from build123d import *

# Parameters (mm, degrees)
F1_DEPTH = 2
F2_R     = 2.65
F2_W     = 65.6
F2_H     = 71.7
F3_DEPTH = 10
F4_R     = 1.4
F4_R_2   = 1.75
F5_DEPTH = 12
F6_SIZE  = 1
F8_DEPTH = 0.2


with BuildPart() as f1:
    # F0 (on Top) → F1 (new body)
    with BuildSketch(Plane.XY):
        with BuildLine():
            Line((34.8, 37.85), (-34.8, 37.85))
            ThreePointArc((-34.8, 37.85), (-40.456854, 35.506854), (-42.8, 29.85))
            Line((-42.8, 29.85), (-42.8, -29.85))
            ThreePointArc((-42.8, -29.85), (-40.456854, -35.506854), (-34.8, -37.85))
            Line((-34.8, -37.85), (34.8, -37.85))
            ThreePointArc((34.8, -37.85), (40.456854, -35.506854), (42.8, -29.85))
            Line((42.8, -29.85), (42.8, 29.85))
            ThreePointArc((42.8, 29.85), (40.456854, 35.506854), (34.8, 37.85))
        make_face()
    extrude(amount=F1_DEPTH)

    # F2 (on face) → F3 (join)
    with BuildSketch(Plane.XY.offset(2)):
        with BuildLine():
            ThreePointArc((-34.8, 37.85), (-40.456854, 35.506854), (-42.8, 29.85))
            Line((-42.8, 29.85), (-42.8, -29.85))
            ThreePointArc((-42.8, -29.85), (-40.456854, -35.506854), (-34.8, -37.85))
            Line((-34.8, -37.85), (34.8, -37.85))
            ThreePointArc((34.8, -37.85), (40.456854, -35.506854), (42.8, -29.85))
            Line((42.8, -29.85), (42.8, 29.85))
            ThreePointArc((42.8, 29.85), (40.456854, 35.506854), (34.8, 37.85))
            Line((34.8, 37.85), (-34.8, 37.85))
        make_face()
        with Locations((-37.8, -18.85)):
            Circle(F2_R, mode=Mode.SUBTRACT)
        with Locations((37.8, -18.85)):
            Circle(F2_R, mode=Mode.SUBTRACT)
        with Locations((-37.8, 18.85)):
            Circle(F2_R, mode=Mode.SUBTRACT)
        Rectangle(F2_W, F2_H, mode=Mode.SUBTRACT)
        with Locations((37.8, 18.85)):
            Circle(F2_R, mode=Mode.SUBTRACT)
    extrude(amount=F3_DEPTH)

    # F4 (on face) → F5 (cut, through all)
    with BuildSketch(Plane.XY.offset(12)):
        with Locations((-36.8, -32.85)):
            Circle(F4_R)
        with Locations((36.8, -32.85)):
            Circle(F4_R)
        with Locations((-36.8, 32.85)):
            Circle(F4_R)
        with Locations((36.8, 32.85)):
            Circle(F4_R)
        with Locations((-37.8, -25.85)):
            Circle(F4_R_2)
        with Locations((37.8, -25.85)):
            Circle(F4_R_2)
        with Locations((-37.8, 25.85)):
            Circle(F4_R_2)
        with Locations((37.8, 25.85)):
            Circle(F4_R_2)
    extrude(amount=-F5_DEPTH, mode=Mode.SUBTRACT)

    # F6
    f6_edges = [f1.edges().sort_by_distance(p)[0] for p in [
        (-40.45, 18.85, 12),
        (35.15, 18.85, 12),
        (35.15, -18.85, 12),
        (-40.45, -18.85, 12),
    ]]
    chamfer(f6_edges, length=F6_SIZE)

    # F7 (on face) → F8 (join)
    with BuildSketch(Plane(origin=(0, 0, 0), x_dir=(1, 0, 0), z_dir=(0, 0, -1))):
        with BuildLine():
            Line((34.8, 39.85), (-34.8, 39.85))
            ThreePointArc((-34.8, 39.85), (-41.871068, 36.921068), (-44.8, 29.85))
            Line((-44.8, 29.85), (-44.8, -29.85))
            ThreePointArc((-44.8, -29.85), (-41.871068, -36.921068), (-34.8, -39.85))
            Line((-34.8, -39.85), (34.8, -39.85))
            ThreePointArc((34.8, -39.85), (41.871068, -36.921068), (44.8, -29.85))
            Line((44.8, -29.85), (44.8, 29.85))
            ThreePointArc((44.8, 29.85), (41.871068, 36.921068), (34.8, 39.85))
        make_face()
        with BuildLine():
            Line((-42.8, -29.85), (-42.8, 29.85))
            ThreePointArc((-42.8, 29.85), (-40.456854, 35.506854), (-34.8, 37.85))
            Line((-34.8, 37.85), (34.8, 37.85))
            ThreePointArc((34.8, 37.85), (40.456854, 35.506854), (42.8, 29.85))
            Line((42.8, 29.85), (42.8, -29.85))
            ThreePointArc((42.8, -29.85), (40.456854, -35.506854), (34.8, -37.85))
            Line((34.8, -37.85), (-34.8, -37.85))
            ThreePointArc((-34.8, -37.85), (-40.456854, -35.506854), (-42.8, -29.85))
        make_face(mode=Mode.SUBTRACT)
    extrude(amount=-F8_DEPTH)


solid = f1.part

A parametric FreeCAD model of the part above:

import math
import FreeCAD as App
import Part
import Sketcher
from FreeCAD import Vector
Q = App.Units.Quantity


def edges_at(feature, points):
    """Names of the edges that pass closest to the given points."""
    edges = feature.Shape.Edges
    near = lambda p: min(range(len(edges)), key=lambda i: edges[i].distToShape(Part.Vertex(*p))[0])
    return sorted({f"Edge{near(p) + 1}" for p in points})

doc = App.newDocument("Part")
params = doc.addObject("Spreadsheet::Sheet", "Params")
for row, (alias, value) in enumerate([
    ("sketch1_radius", "8.000001 mm"),
    ("sketch1_width", "69.6 mm"),
    ("sketch1_height", "59.7 mm"),
    ("pad1_length", "2 mm"),
    ("sketch2_radius", "8.000001 mm"),
    ("sketch2_diameter", "5.3 mm"),
    ("sketch2_width", "69.6 mm"),
    ("sketch2_width2", "65.6 mm"),
    ("sketch2_height", "59.7 mm"),
    ("pad2_length", "10 mm"),
    ("sketch3_diameter", "2.8 mm"),
    ("sketch3_diameter2", "3.5 mm"),
    ("chamfer_size", "1 mm"),
    ("sketch4_radius", "9.999999 mm"),
    ("sketch4_radius2", "8.000001 mm"),
    ("sketch4_width", "69.6 mm"),
    ("sketch4_height", "59.7 mm"),
    ("pad3_length", "0.2 mm"),
], start=1):
    params.set(f"A{row}", alias)
    params.set(f"B{row}", "=" + value)
    params.setAlias(f"B{row}", alias)

body = doc.addObject("PartDesign::Body", "Body")

sketch1 = body.newObject("Sketcher::SketchObject", "Sketch")
sketch1.AttachmentSupport = (doc.getObject("XY_Plane"), [""])
sketch1.MapMode = "FlatFace"
sketch1.addGeometry(Part.LineSegment(Vector(35, 38, 0), Vector(-35, 38, 0)), False)
sketch1.addGeometry(Part.ArcOfCircle(Part.Circle(Vector(-35, 30, 0), Vector(0, 0, 1), 8), math.radians(90), math.radians(180)), False)
sketch1.addGeometry(Part.LineSegment(Vector(-43, 30, 0), Vector(-43, -30, 0)), False)
sketch1.addGeometry(Part.ArcOfCircle(Part.Circle(Vector(-35, -30, 0), Vector(0, 0, 1), 8), math.radians(-180), math.radians(-90)), False)
sketch1.addGeometry(Part.LineSegment(Vector(-35, -38, 0), Vector(35, -38, 0)), False)
sketch1.addGeometry(Part.ArcOfCircle(Part.Circle(Vector(35, -30, 0), Vector(0, 0, 1), 8), math.radians(-90), math.radians(0)), False)
sketch1.addGeometry(Part.LineSegment(Vector(43, -30, 0), Vector(43, 30, 0)), False)
sketch1.addGeometry(Part.ArcOfCircle(Part.Circle(Vector(35, 30, 0), Vector(0, 0, 1), 8), math.radians(0), math.radians(90)), False)
sketch1.addConstraint(Sketcher.Constraint("Tangent", 0, 2, 1, 1))
sketch1.addConstraint(Sketcher.Constraint("Tangent", 1, 2, 2, 1))
sketch1.addConstraint(Sketcher.Constraint("Tangent", 2, 2, 3, 1))
sketch1.addConstraint(Sketcher.Constraint("Tangent", 3, 2, 4, 1))
sketch1.addConstraint(Sketcher.Constraint("Tangent", 4, 2, 5, 1))
sketch1.addConstraint(Sketcher.Constraint("Tangent", 5, 2, 6, 1))
sketch1.addConstraint(Sketcher.Constraint("Tangent", 6, 2, 7, 1))
sketch1.addConstraint(Sketcher.Constraint("Tangent", 7, 2, 0, 1))
sketch1.addConstraint(Sketcher.Constraint("Horizontal", 0))
sketch1.addConstraint(Sketcher.Constraint("Vertical", 2))
sketch1.addConstraint(Sketcher.Constraint("Horizontal", 4))
sketch1.addConstraint(Sketcher.Constraint("Vertical", 6))
sketch1.addConstraint(Sketcher.Constraint("Equal", 1, 3))
sketch1.addConstraint(Sketcher.Constraint("Equal", 3, 5))
sketch1.addConstraint(Sketcher.Constraint("Equal", 5, 7))
sketch1.addConstraint(Sketcher.Constraint("Symmetric", 1, 3, 5, 3, -1, 1))
sketch1.addConstraint(Sketcher.Constraint("Radius", 1, Q("8.000001 mm")))
sketch1.addConstraint(Sketcher.Constraint("DistanceX", 0, 2, 0, 1, Q("69.6 mm")))
sketch1.addConstraint(Sketcher.Constraint("DistanceY", 2, 2, 2, 1, Q("59.7 mm")))
sketch1.setExpression("Constraints[16]", "Params.sketch1_radius")
sketch1.setExpression("Constraints[17]", "Params.sketch1_width")
sketch1.setExpression("Constraints[18]", "Params.sketch1_height")
pad1 = body.newObject("PartDesign::Pad", "Pad")
pad1.Profile = sketch1
pad1.setExpression("Length", "Params.pad1_length")

sketch2 = body.newObject("Sketcher::SketchObject", "Sketch001")
sketch2.AttachmentSupport = (doc.getObject("XY_Plane"), [""])
sketch2.MapMode = "FlatFace"
sketch2.AttachmentOffset = App.Placement(Vector(0, 0, 2), App.Rotation())
sketch2.addGeometry(Part.ArcOfCircle(Part.Circle(Vector(-34.8, 29.8, 0), Vector(0, 0, 1), 8), math.radians(90), math.radians(180)), False)
sketch2.addGeometry(Part.LineSegment(Vector(-42.8, 29.9, 0), Vector(-42.8, -29.9, 0)), False)
sketch2.addGeometry(Part.ArcOfCircle(Part.Circle(Vector(-34.8, -29.8, 0), Vector(0, 0, 1), 8), math.radians(-180), math.radians(-90)), False)
sketch2.addGeometry(Part.LineSegment(Vector(-34.8, -37.9, 0), Vector(34.8, -37.9, 0)), False)
sketch2.addGeometry(Part.ArcOfCircle(Part.Circle(Vector(34.8, -29.8, 0), Vector(0, 0, 1), 8), math.radians(-90), math.radians(0)), False)
sketch2.addGeometry(Part.LineSegment(Vector(42.8, -29.9, 0), Vector(42.8, 29.9, 0)), False)
sketch2.addGeometry(Part.ArcOfCircle(Part.Circle(Vector(34.8, 29.8, 0), Vector(0, 0, 1), 8), math.radians(0), math.radians(90)), False)
sketch2.addGeometry(Part.LineSegment(Vector(34.8, 37.9, 0), Vector(-34.8, 37.9, 0)), False)
sketch2.addGeometry(Part.Circle(Vector(-37.8, -18.9, 0), Vector(0, 0, 1), 2.6), False)
sketch2.addGeometry(Part.Circle(Vector(37.8, -18.9, 0), Vector(0, 0, 1), 2.6), False)
sketch2.addGeometry(Part.Circle(Vector(-37.8, 18.9, 0), Vector(0, 0, 1), 2.6), False)
sketch2.addGeometry(Part.LineSegment(Vector(32.8, -35.9, 0), Vector(-32.8, -35.9, 0)), False)
sketch2.addGeometry(Part.LineSegment(Vector(-32.8, -35.9, 0), Vector(-32.8, 35.9, 0)), False)
sketch2.addGeometry(Part.LineSegment(Vector(-32.8, 35.9, 0), Vector(32.8, 35.9, 0)), False)
sketch2.addGeometry(Part.LineSegment(Vector(32.8, 35.9, 0), Vector(32.8, -35.9, 0)), False)
sketch2.addGeometry(Part.Circle(Vector(37.8, 18.9, 0), Vector(0, 0, 1), 2.6), False)
sketch2.addConstraint(Sketcher.Constraint("Tangent", 0, 2, 1, 1))
sketch2.addConstraint(Sketcher.Constraint("Tangent", 1, 2, 2, 1))
sketch2.addConstraint(Sketcher.Constraint("Tangent", 2, 2, 3, 1))
sketch2.addConstraint(Sketcher.Constraint("Tangent", 3, 2, 4, 1))
sketch2.addConstraint(Sketcher.Constraint("Tangent", 4, 2, 5, 1))
sketch2.addConstraint(Sketcher.Constraint("Tangent", 5, 2, 6, 1))
sketch2.addConstraint(Sketcher.Constraint("Tangent", 6, 2, 7, 1))
sketch2.addConstraint(Sketcher.Constraint("Tangent", 7, 2, 0, 1))
sketch2.addConstraint(Sketcher.Constraint("Coincident", 11, 2, 12, 1))
sketch2.addConstraint(Sketcher.Constraint("Coincident", 12, 2, 13, 1))
sketch2.addConstraint(Sketcher.Constraint("Coincident", 13, 2, 14, 1))
sketch2.addConstraint(Sketcher.Constraint("Coincident", 14, 2, 11, 1))
sketch2.addConstraint(Sketcher.Constraint("Vertical", 1))
sketch2.addConstraint(Sketcher.Constraint("Horizontal", 3))
sketch2.addConstraint(Sketcher.Constraint("Vertical", 5))
sketch2.addConstraint(Sketcher.Constraint("Horizontal", 7))
sketch2.addConstraint(Sketcher.Constraint("Horizontal", 11))
sketch2.addConstraint(Sketcher.Constraint("Vertical", 12))
sketch2.addConstraint(Sketcher.Constraint("Horizontal", 13))
sketch2.addConstraint(Sketcher.Constraint("Vertical", 14))
sketch2.addConstraint(Sketcher.Constraint("Equal", 0, 2))
sketch2.addConstraint(Sketcher.Constraint("Equal", 2, 4))
sketch2.addConstraint(Sketcher.Constraint("Equal", 4, 6))
sketch2.addConstraint(Sketcher.Constraint("Equal", 8, 9))
sketch2.addConstraint(Sketcher.Constraint("Equal", 9, 10))
sketch2.addConstraint(Sketcher.Constraint("Equal", 10, 15))
sketch2.addConstraint(Sketcher.Constraint("Symmetric", 0, 3, 4, 3, -1, 1))
sketch2.addConstraint(Sketcher.Constraint("Symmetric", 9, 3, 10, 3, -1, 1))
sketch2.addConstraint(Sketcher.Constraint("Symmetric", 8, 3, 15, 3, -1, 1))
sketch2.addConstraint(Sketcher.Constraint("Symmetric", 11, 2, 13, 2, -1, 1))
sketch2.addConstraint(Sketcher.Constraint("Symmetric", 8, 3, 9, 3, -2))
sketch2.addConstraint(Sketcher.Constraint("Radius", 0, Q("8.000001 mm")))
sketch2.addConstraint(Sketcher.Constraint("Diameter", 8, Q("5.3 mm")))
sketch2.addConstraint(Sketcher.Constraint("DistanceX", 3, 1, 3, 2, Q("69.6 mm")))
sketch2.addConstraint(Sketcher.Constraint("DistanceX", 11, 2, 11, 1, Q("65.6 mm")))
sketch2.addConstraint(Sketcher.Constraint("DistanceY", 1, 2, 1, 1, Q("59.7 mm")))
sketch2.addConstraint(Sketcher.Constraint("DistanceY", 12, 1, 12, 2, Q("71.7 mm")))
sketch2.addConstraint(Sketcher.Constraint("DistanceX", 8, 3, 2, 3, Q("3.000001 mm")))
sketch2.addConstraint(Sketcher.Constraint("DistanceY", 2, 3, 8, 3, Q("10.999999 mm")))
sketch2.setExpression("Constraints[31]", "Params.sketch2_radius")
sketch2.setExpression("Constraints[32]", "Params.sketch2_diameter")
sketch2.setExpression("Constraints[33]", "Params.sketch2_width")
sketch2.setExpression("Constraints[34]", "Params.sketch2_width2")
sketch2.setExpression("Constraints[35]", "Params.sketch2_height")
pad2 = body.newObject("PartDesign::Pad", "Pad001")
pad2.Profile = sketch2
pad2.setExpression("Length", "Params.pad2_length")

sketch3 = body.newObject("Sketcher::SketchObject", "Sketch002")
sketch3.AttachmentSupport = (doc.getObject("XY_Plane"), [""])
sketch3.MapMode = "FlatFace"
sketch3.AttachmentOffset = App.Placement(Vector(0, 0, 12), App.Rotation())
sketch3.addGeometry(Part.Circle(Vector(-36.8, -32.9, 0), Vector(0, 0, 1), 1.4), False)
sketch3.addGeometry(Part.Circle(Vector(36.8, -32.9, 0), Vector(0, 0, 1), 1.4), False)
sketch3.addGeometry(Part.Circle(Vector(-36.8, 32.9, 0), Vector(0, 0, 1), 1.4), False)
sketch3.addGeometry(Part.Circle(Vector(36.8, 32.9, 0), Vector(0, 0, 1), 1.4), False)
sketch3.addGeometry(Part.Circle(Vector(-37.8, -25.9, 0), Vector(0, 0, 1), 1.8), False)
sketch3.addGeometry(Part.Circle(Vector(37.8, -25.9, 0), Vector(0, 0, 1), 1.8), False)
sketch3.addGeometry(Part.Circle(Vector(-37.8, 25.9, 0), Vector(0, 0, 1), 1.8), False)
sketch3.addGeometry(Part.Circle(Vector(37.8, 25.9, 0), Vector(0, 0, 1), 1.8), False)
sketch3.addConstraint(Sketcher.Constraint("Equal", 0, 1))
sketch3.addConstraint(Sketcher.Constraint("Equal", 1, 2))
sketch3.addConstraint(Sketcher.Constraint("Equal", 2, 3))
sketch3.addConstraint(Sketcher.Constraint("Equal", 4, 5))
sketch3.addConstraint(Sketcher.Constraint("Equal", 5, 6))
sketch3.addConstraint(Sketcher.Constraint("Equal", 6, 7))
sketch3.addConstraint(Sketcher.Constraint("Symmetric", 1, 3, 2, 3, -1, 1))
sketch3.addConstraint(Sketcher.Constraint("Symmetric", 0, 3, 3, 3, -1, 1))
sketch3.addConstraint(Sketcher.Constraint("Symmetric", 5, 3, 6, 3, -1, 1))
sketch3.addConstraint(Sketcher.Constraint("Symmetric", 4, 3, 7, 3, -1, 1))
sketch3.addConstraint(Sketcher.Constraint("Symmetric", 0, 3, 1, 3, -2))
sketch3.addConstraint(Sketcher.Constraint("Symmetric", 4, 3, 5, 3, -2))
sketch3.addConstraint(Sketcher.Constraint("Diameter", 0, Q("2.8 mm")))
sketch3.addConstraint(Sketcher.Constraint("Diameter", 4, Q("3.5 mm")))
sketch3.addConstraint(Sketcher.Constraint("DistanceX", 4, 3, 0, 3, Q("1 mm")))
sketch3.addConstraint(Sketcher.Constraint("DistanceY", 0, 3, 4, 3, Q("7 mm")))
sketch3.addConstraint(Sketcher.Constraint("DistanceX", 0, 3, -1, 1, Q("36.8 mm")))
sketch3.addConstraint(Sketcher.Constraint("DistanceY", 0, 3, 2, 3, Q("65.7 mm")))
sketch3.setExpression("Constraints[12]", "Params.sketch3_diameter")
sketch3.setExpression("Constraints[13]", "Params.sketch3_diameter2")
pocket1 = body.newObject("PartDesign::Pocket", "Pocket")
pocket1.Profile = sketch3
pocket1.Type = "ThroughAll"
doc.recompute()

chamfer = body.newObject("PartDesign::Chamfer", "Chamfer")
chamfer.Base = (pocket1, edges_at(pocket1, [
    (-40.45, 18.85, 12),
    (35.15, 18.85, 12),
    (35.15, -18.85, 12),
    (-40.45, -18.85, 12),
]))
chamfer.setExpression("Size", "Params.chamfer_size")

sketch4 = body.newObject("Sketcher::SketchObject", "Sketch003")
sketch4.AttachmentSupport = (doc.getObject("XY_Plane"), [""])
sketch4.MapMode = "FlatFace"
sketch4.addGeometry(Part.LineSegment(Vector(35, -40, 0), Vector(-35, -40, 0)), False)
sketch4.addGeometry(Part.ArcOfCircle(Part.Circle(Vector(-35, -30, 0), Vector(0, 0, 1), 10), math.radians(180), math.radians(270)), False)
sketch4.addGeometry(Part.LineSegment(Vector(-45, -30, 0), Vector(-45, 30, 0)), False)
sketch4.addGeometry(Part.ArcOfCircle(Part.Circle(Vector(-35, 30, 0), Vector(0, 0, 1), 10), math.radians(90), math.radians(180)), False)
sketch4.addGeometry(Part.LineSegment(Vector(-35, 40, 0), Vector(35, 40, 0)), False)
sketch4.addGeometry(Part.ArcOfCircle(Part.Circle(Vector(35, 30, 0), Vector(0, 0, 1), 10), math.radians(0), math.radians(90)), False)
sketch4.addGeometry(Part.LineSegment(Vector(45, 30, 0), Vector(45, -30, 0)), False)
sketch4.addGeometry(Part.ArcOfCircle(Part.Circle(Vector(35, -30, 0), Vector(0, 0, 1), 10), math.radians(-90), math.radians(0)), False)
sketch4.addGeometry(Part.ArcOfCircle(Part.Circle(Vector(-35, 30, 0), Vector(0, 0, 1), 8), math.radians(90), math.radians(180)), False)
sketch4.addGeometry(Part.LineSegment(Vector(-43, 30, 0), Vector(-43, -30, 0)), False)
sketch4.addGeometry(Part.ArcOfCircle(Part.Circle(Vector(-35, -30, 0), Vector(0, 0, 1), 8), math.radians(-180), math.radians(-90)), False)
sketch4.addGeometry(Part.LineSegment(Vector(-35, -38, 0), Vector(35, -38, 0)), False)
sketch4.addGeometry(Part.ArcOfCircle(Part.Circle(Vector(35, -30, 0), Vector(0, 0, 1), 8), math.radians(-90), math.radians(0)), False)
sketch4.addGeometry(Part.LineSegment(Vector(43, -30, 0), Vector(43, 30, 0)), False)
sketch4.addGeometry(Part.ArcOfCircle(Part.Circle(Vector(35, 30, 0), Vector(0, 0, 1), 8), math.radians(0), math.radians(90)), False)
sketch4.addGeometry(Part.LineSegment(Vector(35, 38, 0), Vector(-35, 38, 0)), False)
sketch4.addConstraint(Sketcher.Constraint("Tangent", 0, 2, 1, 2))
sketch4.addConstraint(Sketcher.Constraint("Tangent", 1, 1, 2, 1))
sketch4.addConstraint(Sketcher.Constraint("Tangent", 2, 2, 3, 2))
sketch4.addConstraint(Sketcher.Constraint("Tangent", 3, 1, 4, 1))
sketch4.addConstraint(Sketcher.Constraint("Tangent", 4, 2, 5, 2))
sketch4.addConstraint(Sketcher.Constraint("Tangent", 5, 1, 6, 1))
sketch4.addConstraint(Sketcher.Constraint("Tangent", 6, 2, 7, 2))
sketch4.addConstraint(Sketcher.Constraint("Tangent", 7, 1, 0, 1))
sketch4.addConstraint(Sketcher.Constraint("Tangent", 8, 2, 9, 1))
sketch4.addConstraint(Sketcher.Constraint("Tangent", 9, 2, 10, 1))
sketch4.addConstraint(Sketcher.Constraint("Tangent", 10, 2, 11, 1))
sketch4.addConstraint(Sketcher.Constraint("Tangent", 11, 2, 12, 1))
sketch4.addConstraint(Sketcher.Constraint("Tangent", 12, 2, 13, 1))
sketch4.addConstraint(Sketcher.Constraint("Tangent", 13, 2, 14, 1))
sketch4.addConstraint(Sketcher.Constraint("Tangent", 14, 2, 15, 1))
sketch4.addConstraint(Sketcher.Constraint("Tangent", 15, 2, 8, 1))
sketch4.addConstraint(Sketcher.Constraint("Horizontal", 0))
sketch4.addConstraint(Sketcher.Constraint("Vertical", 2))
sketch4.addConstraint(Sketcher.Constraint("Horizontal", 4))
sketch4.addConstraint(Sketcher.Constraint("Vertical", 6))
sketch4.addConstraint(Sketcher.Constraint("Vertical", 9))
sketch4.addConstraint(Sketcher.Constraint("Horizontal", 11))
sketch4.addConstraint(Sketcher.Constraint("Vertical", 13))
sketch4.addConstraint(Sketcher.Constraint("Horizontal", 15))
sketch4.addConstraint(Sketcher.Constraint("Coincident", 8, 3, 3, 3))
sketch4.addConstraint(Sketcher.Constraint("Coincident", 10, 3, 1, 3))
sketch4.addConstraint(Sketcher.Constraint("Coincident", 12, 3, 7, 3))
sketch4.addConstraint(Sketcher.Constraint("Equal", 1, 3))
sketch4.addConstraint(Sketcher.Constraint("Equal", 3, 5))
sketch4.addConstraint(Sketcher.Constraint("Equal", 5, 7))
sketch4.addConstraint(Sketcher.Constraint("Equal", 12, 14))
sketch4.addConstraint(Sketcher.Constraint("Symmetric", 1, 3, 5, 3, -1, 1))
sketch4.addConstraint(Sketcher.Constraint("Radius", 1, Q("9.999999 mm")))
sketch4.addConstraint(Sketcher.Constraint("Radius", 8, Q("8.000001 mm")))
sketch4.addConstraint(Sketcher.Constraint("DistanceX", 0, 2, 0, 1, Q("69.6 mm")))
sketch4.addConstraint(Sketcher.Constraint("DistanceY", 2, 1, 2, 2, Q("59.7 mm")))
sketch4.setExpression("Constraints[32]", "Params.sketch4_radius")
sketch4.setExpression("Constraints[33]", "Params.sketch4_radius2")
sketch4.setExpression("Constraints[34]", "Params.sketch4_width")
sketch4.setExpression("Constraints[35]", "Params.sketch4_height")
pad3 = body.newObject("PartDesign::Pad", "Pad002")
pad3.Profile = sketch4
pad3.setExpression("Length", "Params.pad3_length")

doc.recompute()
